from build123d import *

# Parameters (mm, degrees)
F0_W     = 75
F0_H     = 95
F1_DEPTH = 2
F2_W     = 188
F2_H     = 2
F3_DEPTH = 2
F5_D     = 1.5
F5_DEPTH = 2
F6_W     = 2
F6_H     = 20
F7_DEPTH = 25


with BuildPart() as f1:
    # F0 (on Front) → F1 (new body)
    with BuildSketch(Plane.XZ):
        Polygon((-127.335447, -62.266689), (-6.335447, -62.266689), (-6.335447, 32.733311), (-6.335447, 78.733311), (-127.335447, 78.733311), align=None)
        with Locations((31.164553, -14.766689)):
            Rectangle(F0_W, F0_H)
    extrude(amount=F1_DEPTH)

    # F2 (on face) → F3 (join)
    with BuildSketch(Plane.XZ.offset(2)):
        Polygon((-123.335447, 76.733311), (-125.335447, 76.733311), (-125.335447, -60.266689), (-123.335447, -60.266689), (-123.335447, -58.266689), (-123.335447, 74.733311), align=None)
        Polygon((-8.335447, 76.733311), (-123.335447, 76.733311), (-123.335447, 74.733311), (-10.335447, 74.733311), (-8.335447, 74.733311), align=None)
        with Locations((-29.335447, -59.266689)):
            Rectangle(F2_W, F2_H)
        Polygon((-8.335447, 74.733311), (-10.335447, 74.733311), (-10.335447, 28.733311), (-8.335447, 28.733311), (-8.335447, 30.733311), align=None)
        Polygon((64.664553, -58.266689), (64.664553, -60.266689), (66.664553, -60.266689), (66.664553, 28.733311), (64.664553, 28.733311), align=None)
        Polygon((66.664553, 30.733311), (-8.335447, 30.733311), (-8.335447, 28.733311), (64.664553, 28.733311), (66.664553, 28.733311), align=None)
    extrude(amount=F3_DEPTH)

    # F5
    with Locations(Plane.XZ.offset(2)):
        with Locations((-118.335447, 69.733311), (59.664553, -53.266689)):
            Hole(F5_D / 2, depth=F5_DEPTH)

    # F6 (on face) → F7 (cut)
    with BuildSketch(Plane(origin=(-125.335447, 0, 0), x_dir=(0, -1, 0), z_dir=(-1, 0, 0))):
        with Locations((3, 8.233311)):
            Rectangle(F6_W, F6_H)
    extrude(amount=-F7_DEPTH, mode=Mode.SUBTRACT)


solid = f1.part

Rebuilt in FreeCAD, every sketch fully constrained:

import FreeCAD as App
import Part
import Sketcher


def add_polygon(sketch, points):
    """Adds a closed chain of lines whose ends are joined by coincident constraints."""
    first, n = sketch.GeometryCount, len(points)
    for a, b in zip(points, points[1:] + points[:1]):
        sketch.addGeometry(Part.LineSegment(App.Vector(*a, 0), App.Vector(*b, 0)), False)
    for i in range(n):
        sketch.addConstraint(Sketcher.Constraint("Coincident", first + i, 2, first + (i + 1) % n, 1))

doc = App.newDocument("Part")
body = doc.addObject("PartDesign::Body", "Body")

sketch1 = body.newObject("Sketcher::SketchObject", "Sketch")
sketch1.AttachmentSupport = (doc.getObject("XZ_Plane"), [""])
sketch1.MapMode = "FlatFace"
add_polygon(sketch1, [(-127, -62), (69, -62), (69, 33), (-6, 33), (-6, 79), (-127, 79)])
sketch1.addConstraint([
    Sketcher.Constraint("Horizontal", 0),
    Sketcher.Constraint("Vertical", 1),
    Sketcher.Constraint("Horizontal", 2),
    Sketcher.Constraint("Vertical", 3),
    Sketcher.Constraint("Horizontal", 4),
    Sketcher.Constraint("Vertical", 5),
    Sketcher.Constraint("DistanceX", 0, 1, 0, 2, 196.0),
    Sketcher.Constraint("DistanceX", 2, 2, 2, 1, 75.0),
    Sketcher.Constraint("DistanceY", 1, 1, 1, 2, 95.0),
    Sketcher.Constraint("DistanceY", 3, 1, 3, 2, 46.0),
    Sketcher.Constraint("DistanceY", 0, 2, -1, 1, 62.266689),
    Sketcher.Constraint("DistanceX", -1, 1, 0, 2, 68.664553),
])
pad1 = body.newObject("PartDesign::Pad", "Pad")
pad1.Profile = sketch1
pad1.Length = 2

sketch2 = body.newObject("Sketcher::SketchObject", "Sketch001")
sketch2.AttachmentSupport = (doc.getObject("XZ_Plane"), [""])
sketch2.MapMode = "FlatFace"
sketch2.AttachmentOffset = App.Placement(App.Vector(0, 0, 2), App.Rotation())
add_polygon(sketch2, [(-125, 77), (-125, -60), (67, -60), (67, 31), (-8, 31), (-8, 77)])
add_polygon(sketch2, [(65, 29), (65, -58), (-123, -58), (-123, 75), (-10, 75), (-10, 29)])
sketch2.addConstraint([
    Sketcher.Constraint("Vertical", 0),
    Sketcher.Constraint("Horizontal", 1),
    Sketcher.Constraint("Vertical", 2),
    Sketcher.Constraint("Horizontal", 3),
    Sketcher.Constraint("Vertical", 4),
    Sketcher.Constraint("Horizontal", 5),
    Sketcher.Constraint("Vertical", 6),
    Sketcher.Constraint("Horizontal", 7),
    Sketcher.Constraint("Vertical", 8),
    Sketcher.Constraint("Horizontal", 9),
    Sketcher.Constraint("Vertical", 10),
    Sketcher.Constraint("Horizontal", 11),
    Sketcher.Constraint("Equal", 3, 11),
    Sketcher.Constraint("Equal", 4, 10),
    Sketcher.Constraint("DistanceX", 1, 1, 1, 2, 192.0),
    Sketcher.Constraint("DistanceX", 3, 2, 3, 1, 75.0),
    Sketcher.Constraint("DistanceX", 7, 2, 7, 1, 188.0),
    Sketcher.Constraint("DistanceY", 0, 2, 0, 1, 137.0),
    Sketcher.Constraint("DistanceY", 2, 1, 2, 2, 91.0),
    Sketcher.Constraint("DistanceY", 6, 2, 6, 1, 87.0),
    Sketcher.Constraint("DistanceX", 6, 2, 1, 2, 2.0),
    Sketcher.Constraint("DistanceY", 1, 2, 6, 2, 2.0),
    Sketcher.Constraint("DistanceY", 0, 2, -1, 1, 60.266689),
    Sketcher.Constraint("DistanceX", 0, 2, -1, 1, 125.335447),
])
pad2 = body.newObject("PartDesign::Pad", "Pad001")
pad2.Profile = sketch2
pad2.Length = 2

sketch3 = body.newObject("Sketcher::SketchObject", "Sketch002")
sketch3.AttachmentSupport = (doc.getObject("XZ_Plane"), [""])
sketch3.MapMode = "FlatFace"
sketch3.AttachmentOffset = App.Placement(App.Vector(0, 0, 2), App.Rotation())
sketch3.addGeometry([
    Part.Circle(App.Vector(-118.3, 69.7, 0), App.Vector(0, 0, 1), 0.8),
    Part.Circle(App.Vector(59.7, -53.3, 0), App.Vector(0, 0, 1), 0.8),
], False)
sketch3.addConstraint([
    Sketcher.Constraint("Equal", 0, 1),
    Sketcher.Constraint("Diameter", 0, 1.5),
    Sketcher.Constraint("DistanceX", 0, 3, 1, 3, 178.0),
    Sketcher.Constraint("DistanceY", 1, 3, 0, 3, 123.0),
    Sketcher.Constraint("DistanceY", -1, 1, 0, 3, 69.733311),
    Sketcher.Constraint("DistanceX", 0, 3, -1, 1, 118.335447),
])
doc.recompute()
hole = body.newObject("PartDesign::Hole", "Hole")
hole.Profile = sketch3
hole.ThreadType = "None"
hole.Diameter = 1.5
hole.DepthType = "Dimension"
hole.Depth = 2
hole.DrillPoint = "Flat"

sketch4 = body.newObject("Sketcher::SketchObject", "Sketch003")
sketch4.AttachmentSupport = (doc.getObject("YZ_Plane"), [""])
sketch4.MapMode = "FlatFace"
sketch4.AttachmentOffset = App.Placement(App.Vector(0, 0, -125.335447), App.Rotation())
add_polygon(sketch4, [(-2, 18.2), (-2, -1.8), (-4, -1.8), (-4, 18.2)])
sketch4.addConstraint([
    Sketcher.Constraint("Vertical", 0),
    Sketcher.Constraint("Horizontal", 1),
    Sketcher.Constraint("Vertical", 2),
    Sketcher.Constraint("Horizontal", 3),
    Sketcher.Constraint("DistanceX", 1, 2, 1, 1, 2.0),
    Sketcher.Constraint("DistanceY", 0, 2, 0, 1, 20.0),
    Sketcher.Constraint("DistanceX", 0, 2, -1, 1, 2.0),
    Sketcher.Constraint("DistanceY", 0, 2, -1, 1, 1.766689),
])
pocket1 = body.newObject("PartDesign::Pocket", "Pocket")
pocket1.Profile = sketch4
pocket1.Length = 25
pocket1.Reversed = True

doc.recompute()
